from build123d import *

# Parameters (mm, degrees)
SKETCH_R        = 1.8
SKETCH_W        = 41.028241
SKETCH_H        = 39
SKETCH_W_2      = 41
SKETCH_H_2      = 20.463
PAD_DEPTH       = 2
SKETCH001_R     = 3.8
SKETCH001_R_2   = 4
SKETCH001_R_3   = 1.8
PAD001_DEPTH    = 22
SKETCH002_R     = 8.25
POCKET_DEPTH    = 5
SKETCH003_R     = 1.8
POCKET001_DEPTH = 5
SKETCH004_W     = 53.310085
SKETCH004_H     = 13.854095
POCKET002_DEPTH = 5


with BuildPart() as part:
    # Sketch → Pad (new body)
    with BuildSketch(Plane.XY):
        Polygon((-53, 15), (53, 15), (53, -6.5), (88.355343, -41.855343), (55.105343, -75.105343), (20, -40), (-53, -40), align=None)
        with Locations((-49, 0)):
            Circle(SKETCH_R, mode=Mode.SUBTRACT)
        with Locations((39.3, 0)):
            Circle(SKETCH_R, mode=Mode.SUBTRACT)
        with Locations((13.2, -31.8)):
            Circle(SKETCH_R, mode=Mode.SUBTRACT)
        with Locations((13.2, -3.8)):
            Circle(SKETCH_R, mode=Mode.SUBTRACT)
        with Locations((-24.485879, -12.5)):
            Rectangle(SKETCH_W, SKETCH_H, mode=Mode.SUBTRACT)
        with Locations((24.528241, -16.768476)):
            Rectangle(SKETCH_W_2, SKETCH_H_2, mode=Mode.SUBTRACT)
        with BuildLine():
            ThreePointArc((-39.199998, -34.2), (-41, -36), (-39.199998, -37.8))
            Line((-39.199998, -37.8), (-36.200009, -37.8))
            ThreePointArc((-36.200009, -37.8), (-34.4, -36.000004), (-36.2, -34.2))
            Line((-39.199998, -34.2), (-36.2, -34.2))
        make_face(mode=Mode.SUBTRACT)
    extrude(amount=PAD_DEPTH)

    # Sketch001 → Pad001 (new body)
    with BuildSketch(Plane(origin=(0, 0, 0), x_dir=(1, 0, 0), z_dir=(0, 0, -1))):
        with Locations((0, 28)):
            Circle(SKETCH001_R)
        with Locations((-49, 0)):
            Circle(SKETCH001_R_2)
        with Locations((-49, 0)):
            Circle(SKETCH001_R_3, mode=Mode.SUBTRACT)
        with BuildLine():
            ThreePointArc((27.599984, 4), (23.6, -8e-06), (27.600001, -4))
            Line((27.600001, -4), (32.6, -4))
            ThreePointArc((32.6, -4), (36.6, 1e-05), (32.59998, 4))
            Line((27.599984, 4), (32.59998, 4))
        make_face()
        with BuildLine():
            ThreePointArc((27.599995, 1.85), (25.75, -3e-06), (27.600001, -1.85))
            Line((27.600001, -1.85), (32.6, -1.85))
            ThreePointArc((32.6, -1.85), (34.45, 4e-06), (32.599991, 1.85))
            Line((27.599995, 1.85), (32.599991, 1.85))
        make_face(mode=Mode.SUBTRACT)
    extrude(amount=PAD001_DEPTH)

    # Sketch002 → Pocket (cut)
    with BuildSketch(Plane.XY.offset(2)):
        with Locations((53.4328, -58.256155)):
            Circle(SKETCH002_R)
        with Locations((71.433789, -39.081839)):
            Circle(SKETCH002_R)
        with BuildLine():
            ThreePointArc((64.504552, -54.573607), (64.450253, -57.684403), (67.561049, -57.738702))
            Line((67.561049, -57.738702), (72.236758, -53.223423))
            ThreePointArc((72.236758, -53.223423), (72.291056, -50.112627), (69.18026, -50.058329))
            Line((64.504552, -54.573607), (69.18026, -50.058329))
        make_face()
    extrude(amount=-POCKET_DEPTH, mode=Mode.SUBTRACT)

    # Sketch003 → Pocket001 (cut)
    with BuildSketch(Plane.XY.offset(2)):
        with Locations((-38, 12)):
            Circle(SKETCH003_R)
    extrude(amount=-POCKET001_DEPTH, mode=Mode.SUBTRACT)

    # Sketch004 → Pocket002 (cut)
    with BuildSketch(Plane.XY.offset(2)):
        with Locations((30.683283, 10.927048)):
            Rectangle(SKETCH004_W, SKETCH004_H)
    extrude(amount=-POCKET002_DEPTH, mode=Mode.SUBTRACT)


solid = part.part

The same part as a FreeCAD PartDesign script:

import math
import FreeCAD as App
import Part
import Sketcher
Q = App.Units.Quantity

doc = App.newDocument("Part")
body = doc.addObject("PartDesign::Body", "Body")

# Sketch on XY plane
sketch1 = body.newObject("Sketcher::SketchObject", "Sketch")
sketch1.AttachmentSupport = (doc.getObject("XY_Plane"), [""])
sketch1.MapMode = "FlatFace"
sketch1.addGeometry(Part.LineSegment(App.Vector(53, 15, 0), App.Vector(-53, 15, 0)), False)
sketch1.addGeometry(Part.LineSegment(App.Vector(-53, 15, 0), App.Vector(-53, -40, 0)), False)
sketch1.addGeometry(Part.LineSegment(App.Vector(-53, -40, 0), App.Vector(20, -40, 0)), False)
sketch1.addGeometry(Part.LineSegment(App.Vector(20, -40, 0), App.Vector(55.1, -75.1, 0)), False)
sketch1.addGeometry(Part.LineSegment(App.Vector(55.1, -75.1, 0), App.Vector(88.4, -41.9, 0)), False)
sketch1.addGeometry(Part.LineSegment(App.Vector(88.4, -41.9, 0), App.Vector(53, -6.5, 0)), False)
sketch1.addGeometry(Part.LineSegment(App.Vector(53, -6.5, 0), App.Vector(53, 15, 0)), False)
sketch1.addGeometry(Part.Circle(App.Vector(13.2, -31.8, 0), App.Vector(0, 0, 1), 1.8), False)
sketch1.addGeometry(Part.LineSegment(App.Vector(4, -27, 0), App.Vector(4, -6.5, 0)), False)
sketch1.addGeometry(Part.LineSegment(App.Vector(4, -6.5, 0), App.Vector(45, -6.5, 0)), False)
sketch1.addGeometry(Part.LineSegment(App.Vector(45, -6.5, 0), App.Vector(45, -27, 0)), False)
sketch1.addGeometry(Part.LineSegment(App.Vector(45, -27, 0), App.Vector(4, -27, 0)), False)
sketch1.addGeometry(Part.LineSegment(App.Vector(-39.2, -34.2, 0), App.Vector(-36.2, -34.2, 0)), False)
sketch1.addGeometry(Part.ArcOfCircle(Part.Circle(App.Vector(-36.2, -36, 0), App.Vector(0, 0, 1), 1.8), math.radians(-90), math.radians(90)), False)
sketch1.addGeometry(Part.LineSegment(App.Vector(-36.2, -37.8, 0), App.Vector(-39.2, -37.8, 0)), False)
sketch1.addGeometry(Part.ArcOfCircle(Part.Circle(App.Vector(-39.2, -36, 0), App.Vector(0, 0, 1), 1.8), math.radians(90), math.radians(270)), False)
sketch1.addGeometry(Part.Circle(App.Vector(39.3, 0, 0), App.Vector(0, 0, 1), 1.8), False)
sketch1.addGeometry(Part.Circle(App.Vector(13.2, -3.8, 0), App.Vector(0, 0, 1), 1.8), False)
sketch1.addGeometry(Part.LineSegment(App.Vector(-45, -32, 0), App.Vector(-45, 7, 0)), False)
sketch1.addGeometry(Part.LineSegment(App.Vector(-45, 7, 0), App.Vector(-4, 7, 0)), False)
sketch1.addGeometry(Part.LineSegment(App.Vector(-4, 7, 0), App.Vector(-4, -32, 0)), False)
sketch1.addGeometry(Part.LineSegment(App.Vector(-4, -32, 0), App.Vector(-45, -32, 0)), False)
sketch1.addGeometry(Part.Circle(App.Vector(-49, 0, 0), App.Vector(0, 0, 1), 1.8), False)
sketch1.addConstraint(Sketcher.Constraint("Coincident", 0, 2, 1, 1))
sketch1.addConstraint(Sketcher.Constraint("Coincident", 1, 2, 2, 1))
sketch1.addConstraint(Sketcher.Constraint("Coincident", 2, 2, 3, 1))
sketch1.addConstraint(Sketcher.Constraint("Coincident", 3, 2, 4, 1))
sketch1.addConstraint(Sketcher.Constraint("Coincident", 4, 2, 5, 1))
sketch1.addConstraint(Sketcher.Constraint("Coincident", 5, 2, 6, 1))
sketch1.addConstraint(Sketcher.Constraint("Coincident", 6, 2, 0, 1))
sketch1.addConstraint(Sketcher.Constraint("Coincident", 8, 2, 9, 1))
sketch1.addConstraint(Sketcher.Constraint("Coincident", 9, 2, 10, 1))
sketch1.addConstraint(Sketcher.Constraint("Coincident", 10, 2, 11, 1))
sketch1.addConstraint(Sketcher.Constraint("Coincident", 11, 2, 8, 1))
sketch1.addConstraint(Sketcher.Constraint("Tangent", 12, 2, 13, 2))
sketch1.addConstraint(Sketcher.Constraint("Coincident", 13, 1, 14, 1))
sketch1.addConstraint(Sketcher.Constraint("Tangent", 14, 2, 15, 2))
sketch1.addConstraint(Sketcher.Constraint("Tangent", 15, 1, 12, 1))
sketch1.addConstraint(Sketcher.Constraint("Coincident", 18, 2, 19, 1))
sketch1.addConstraint(Sketcher.Constraint("Coincident", 19, 2, 20, 1))
sketch1.addConstraint(Sketcher.Constraint("Coincident", 20, 2, 21, 1))
sketch1.addConstraint(Sketcher.Constraint("Coincident", 21, 2, 18, 1))
sketch1.addConstraint(Sketcher.Constraint("Horizontal", 0))
sketch1.addConstraint(Sketcher.Constraint("Vertical", 1))
sketch1.addConstraint(Sketcher.Constraint("Horizontal", 2))
sketch1.addConstraint(Sketcher.Constraint("Vertical", 6))
sketch1.addConstraint(Sketcher.Constraint("Vertical", 8))
sketch1.addConstraint(Sketcher.Constraint("Horizontal", 9))
sketch1.addConstraint(Sketcher.Constraint("Vertical", 10))
sketch1.addConstraint(Sketcher.Constraint("Horizontal", 11))
sketch1.addConstraint(Sketcher.Constraint("Horizontal", 12))
sketch1.addConstraint(Sketcher.Constraint("Horizontal", 14))
sketch1.addConstraint(Sketcher.Constraint("Vertical", 18))
sketch1.addConstraint(Sketcher.Constraint("Horizontal", 19))
sketch1.addConstraint(Sketcher.Constraint("Vertical", 20))
sketch1.addConstraint(Sketcher.Constraint("Horizontal", 21))
sketch1.addConstraint(Sketcher.Constraint("Equal", 7, 13))
sketch1.addConstraint(Sketcher.Constraint("Equal", 15, 16))
sketch1.addConstraint(Sketcher.Constraint("Equal", 16, 17))
sketch1.addConstraint(Sketcher.Constraint("Equal", 17, 22))
sketch1.addConstraint(Sketcher.Constraint("PointOnObject", 16, 3, -1))
sketch1.addConstraint(Sketcher.Constraint("PointOnObject", 22, 3, -1))
sketch1.addConstraint(Sketcher.Constraint("Perpendicular", 3, 4))
sketch1.addConstraint(Sketcher.Constraint("Perpendicular", 4, 5))
sketch1.addConstraint(Sketcher.Constraint("Vertical", 7, 3, 17, 3))
sketch1.addConstraint(Sketcher.Constraint("Diameter", 7, Q("3.6 mm")))
sketch1.addConstraint(Sketcher.Constraint("DistanceX", 0, 2, 0, 1, Q("106 mm")))
sketch1.addConstraint(Sketcher.Constraint("DistanceX", 2, 1, 2, 2, Q("73 mm")))
sketch1.addConstraint(Sketcher.Constraint("DistanceX", 9, 1, 9, 2, Q("41 mm")))
sketch1.addConstraint(Sketcher.Constraint("DistanceY", 1, 2, 1, 1, Q("55 mm")))
sketch1.addConstraint(Sketcher.Constraint("DistanceY", 18, 1, 18, 2, Q("39 mm")))
sketch1.addConstraint(Sketcher.Constraint("Angle", 3, Q("-45 deg")))
sketch1.addConstraint(Sketcher.Constraint("DistanceY", 6, 1, 6, 2, Q("21.5 mm")))
sketch1.addConstraint(Sketcher.Constraint("DistanceY", 13, 3, -1, 1, Q("36 mm")))
sketch1.addConstraint(Sketcher.Constraint("DistanceX", 22, 3, -1, 1, Q("49 mm")))
sketch1.addConstraint(Sketcher.Constraint("DistanceX", 0, 2, -1, 1, Q("53 mm")))
sketch1.addConstraint(Sketcher.Constraint("DistanceY", -1, 1, 0, 2, Q("15 mm")))
sketch1.addConstraint(Sketcher.Constraint("DistanceX", 18, 2, -1, 1, Q("45 mm")))
sketch1.addConstraint(Sketcher.Constraint("DistanceY", -1, 1, 18, 2, Q("7 mm")))
sketch1.addConstraint(Sketcher.Constraint("DistanceX", 15, 3, 13, 3, Q("3 mm")))
sketch1.addConstraint(Sketcher.Constraint("DistanceY", 7, 3, 17, 3, Q("28 mm")))
sketch1.addConstraint(Sketcher.Constraint("DistanceX", 19, 2, 8, 2, Q("8 mm")))
sketch1.addConstraint(Sketcher.Constraint("DistanceX", -1, 1, 7, 3, Q("13.2 mm")))
sketch1.addConstraint(Sketcher.Constraint("DistanceY", 7, 3, -1, 1, Q("31.8 mm")))
sketch1.addConstraint(Sketcher.Constraint("DistanceX", 13, 3, -1, 1, Q("36.2 mm")))
sketch1.addConstraint(Sketcher.Constraint("DistanceX", -1, 1, 16, 3, Q("39.3 mm")))
sketch1.addConstraint(Sketcher.Constraint("DistanceY", 8, 1, 8, 2, Q("20.463 mm")))
sketch1.addConstraint(Sketcher.Constraint("DistanceX", 14, 2, 14, 1, Q("2.999989 mm")))
sketch1.addConstraint(Sketcher.Constraint("DistanceX", 19, 1, 19, 2, Q("41.028241 mm")))
sketch1.addConstraint(Sketcher.Constraint("Distance", 3, Q("49.646452 mm")))
sketch1.addConstraint(Sketcher.Constraint("DistanceY", 8, 2, -1, 1, Q("6.536976 mm")))
pad1 = body.newObject("PartDesign::Pad", "Pad")
pad1.Profile = sketch1
pad1.Length = 2

# Sketch on XY plane
sketch2 = body.newObject("Sketcher::SketchObject", "Sketch001")
sketch2.AttachmentSupport = (doc.getObject("XY_Plane"), [""])
sketch2.MapMode = "FlatFace"
sketch2.addGeometry(Part.Circle(App.Vector(0, -28, 0), App.Vector(0, 0, 1), 3.8), False)
sketch2.addGeometry(Part.Circle(App.Vector(-49, 0, 0), App.Vector(0, 0, 1), 4), False)
sketch2.addGeometry(Part.Circle(App.Vector(-49, 0, 0), App.Vector(0, 0, 1), 1.8), False)
sketch2.addGeometry(Part.ArcOfCircle(Part.Circle(App.Vector(27.6, 0, 0), App.Vector(0, 0, 1), 4), math.radians(90), math.radians(270)), False)
sketch2.addGeometry(Part.LineSegment(App.Vector(27.6, 4, 0), App.Vector(32.6, 4, 0)), False)
sketch2.addGeometry(Part.ArcOfCircle(Part.Circle(App.Vector(32.6, 0, 0), App.Vector(0, 0, 1), 4), math.radians(-90), math.radians(90)), False)
sketch2.addGeometry(Part.LineSegment(App.Vector(32.6, -4, 0), App.Vector(27.6, -4, 0)), False)
sketch2.addGeometry(Part.ArcOfCircle(Part.Circle(App.Vector(27.6, 0, 0), App.Vector(0, 0, 1), 1.9), math.radians(90), math.radians(270)), False)
sketch2.addGeometry(Part.LineSegment(App.Vector(27.6, -1.9, 0), App.Vector(32.6, -1.9, 0)), False)
sketch2.addGeometry(Part.ArcOfCircle(Part.Circle(App.Vector(32.6, 0, 0), App.Vector(0, 0, 1), 1.9), math.radians(-90), math.radians(90)), False)
sketch2.addGeometry(Part.LineSegment(App.Vector(32.6, 1.9, 0), App.Vector(27.6, 1.9, 0)), False)
sketch2.addConstraint(Sketcher.Constraint("Tangent", 3, 1, 4, 1))
sketch2.addConstraint(Sketcher.Constraint("Tangent", 4, 2, 5, 2))
sketch2.addConstraint(Sketcher.Constraint("Coincident", 5, 1, 6, 1))
sketch2.addConstraint(Sketcher.Constraint("Coincident", 6, 2, 3, 2))
sketch2.addConstraint(Sketcher.Constraint("Coincident", 7, 2, 8, 1))
sketch2.addConstraint(Sketcher.Constraint("Coincident", 8, 2, 9, 1))
sketch2.addConstraint(Sketcher.Constraint("Tangent", 9, 2, 10, 1))
sketch2.addConstraint(Sketcher.Constraint("Tangent", 10, 2, 7, 1))
sketch2.addConstraint(Sketcher.Constraint("Horizontal", 4))
sketch2.addConstraint(Sketcher.Constraint("Horizontal", 6))
sketch2.addConstraint(Sketcher.Constraint("Horizontal", 8))
sketch2.addConstraint(Sketcher.Constraint("Horizontal", 10))
sketch2.addConstraint(Sketcher.Constraint("Coincident", 2, 3, 1, 3))
sketch2.addConstraint(Sketcher.Constraint("Coincident", 7, 3, 3, 3))
sketch2.addConstraint(Sketcher.Constraint("Equal", 1, 3))
sketch2.addConstraint(Sketcher.Constraint("Symmetric", 8, 2, 9, 2, -1))
sketch2.addConstraint(Sketcher.Constraint("PointOnObject", 0, 3, -2))
sketch2.addConstraint(Sketcher.Constraint("PointOnObject", 1, 3, -1))
sketch2.addConstraint(Sketcher.Constraint("Vertical", 9, 3, 4, 2))
sketch2.addConstraint(Sketcher.Constraint("Equal", 6, 8))
sketch2.addConstraint(Sketcher.Constraint("Diameter", 1, Q("8 mm")))
sketch2.addConstraint(Sketcher.Constraint("Diameter", 0, Q("7.6 mm")))
sketch2.addConstraint(Sketcher.Constraint("Diameter", 2, Q("3.6 mm")))
sketch2.addConstraint(Sketcher.Constraint("DistanceX", 4, 1, 4, 2, Q("4.999999 mm")))
sketch2.addConstraint(Sketcher.Constraint("Radius", 7, Q("1.85 mm")))
sketch2.addConstraint(Sketcher.Constraint("DistanceY", 0, 3, -1, 1, Q("28 mm")))
sketch2.addConstraint(Sketcher.Constraint("DistanceX", 1, 3, -1, 1, Q("49 mm")))
sketch2.addConstraint(Sketcher.Constraint("DistanceX", -1, 1, 3, 3, Q("27.6 mm")))
sketch2.addConstraint(Sketcher.Constraint("DistanceX", 6, 2, 6, 1, Q("4.999996 mm")))
sketch2.addConstraint(Sketcher.Constraint("DistanceX", -1, 1, 5, 1, Q("32.59998 mm")))
pad2 = body.newObject("PartDesign::Pad", "Pad001")
pad2.Profile = sketch2
pad2.Length = 22
pad2.Reversed = True

# Sketch on XY plane
sketch3 = body.newObject("Sketcher::SketchObject", "Sketch002")
sketch3.AttachmentSupport = (doc.getObject("XY_Plane"), [""])
sketch3.MapMode = "FlatFace"
sketch3.AttachmentOffset = App.Placement(App.Vector(0, 0, 2), App.Rotation())
sketch3.addGeometry(Part.Circle(App.Vector(53.4, -58.3, 0), App.Vector(0, 0, 1), 8.2), False)
sketch3.addGeometry(Part.Circle(App.Vector(71.4, -39.1, 0), App.Vector(0, 0, 1), 8.2), False)
sketch3.addGeometry(Part.ArcOfCircle(Part.Circle(App.Vector(66, -56.2, 0), App.Vector(0, 0, 1), 2.2), math.radians(134), math.radians(314)), False)
sketch3.addGeometry(Part.LineSegment(App.Vector(67.6, -57.7, 0), App.Vector(72.2, -53.2, 0)), False)
sketch3.addGeometry(Part.ArcOfCircle(Part.Circle(App.Vector(70.7, -51.6, 0), App.Vector(0, 0, 1), 2.2), math.radians(-46), math.radians(134)), False)
sketch3.addGeometry(Part.LineSegment(App.Vector(69.2, -50.1, 0), App.Vector(64.5, -54.6, 0)), False)
sketch3.addConstraint(Sketcher.Constraint("Tangent", 2, 2, 3, 1))
sketch3.addConstraint(Sketcher.Constraint("Tangent", 3, 2, 4, 1))
sketch3.addConstraint(Sketcher.Constraint("Tangent", 4, 2, 5, 1))
sketch3.addConstraint(Sketcher.Constraint("Tangent", 5, 2, 2, 1))
sketch3.addConstraint(Sketcher.Constraint("Equal", 0, 1))
sketch3.addConstraint(Sketcher.Constraint("Equal", 2, 4))
sketch3.addConstraint(Sketcher.Constraint("Diameter", 0, Q("16.5 mm")))
sketch3.addConstraint(Sketcher.Constraint("Radius", 2, Q("2.2 mm")))
sketch3.addConstraint(Sketcher.Constraint("Angle", 3, Q("43.999996 deg")))
sketch3.addConstraint(Sketcher.Constraint("Distance", 3, Q("6.5 mm")))
sketch3.addConstraint(Sketcher.Constraint("DistanceX", 0, 3, 2, 3, Q("12.6 mm")))
sketch3.addConstraint(Sketcher.Constraint("DistanceY", 0, 3, 2, 3, Q("2.100001 mm")))
sketch3.addConstraint(Sketcher.Constraint("DistanceX", -1, 1, 0, 3, Q("53.4328 mm")))
sketch3.addConstraint(Sketcher.Constraint("DistanceY", 2, 2, -1, 1, Q("57.738702 mm")))
sketch3.addConstraint(Sketcher.Constraint("DistanceX", -1, 1, 1, 3, Q("71.433789 mm")))
sketch3.addConstraint(Sketcher.Constraint("DistanceY", 1, 3, -1, 1, Q("39.081839 mm")))
pocket1 = body.newObject("PartDesign::Pocket", "Pocket")
pocket1.Profile = sketch3
pocket1.Length = 5

# Sketch on XY plane
sketch4 = body.newObject("Sketcher::SketchObject", "Sketch003")
sketch4.AttachmentSupport = (doc.getObject("XY_Plane"), [""])
sketch4.MapMode = "FlatFace"
sketch4.AttachmentOffset = App.Placement(App.Vector(0, 0, 2), App.Rotation())
sketch4.addGeometry(Part.Circle(App.Vector(-38, 12, 0), App.Vector(0, 0, 1), 1.8), False)
sketch4.addConstraint(Sketcher.Constraint("Diameter", 0, Q("3.6 mm")))
sketch4.addConstraint(Sketcher.Constraint("DistanceX", 0, 3, -1, 1, Q("38 mm")))
sketch4.addConstraint(Sketcher.Constraint("DistanceY", -1, 1, 0, 3, Q("12 mm")))
pocket2 = body.newObject("PartDesign::Pocket", "Pocket001")
pocket2.Profile = sketch4
pocket2.Length = 5

# Sketch on XY plane
sketch5 = body.newObject("Sketcher::SketchObject", "Sketch004")
sketch5.AttachmentSupport = (doc.getObject("XY_Plane"), [""])
sketch5.MapMode = "FlatFace"
sketch5.AttachmentOffset = App.Placement(App.Vector(0, 0, 2), App.Rotation())
sketch5.addGeometry(Part.LineSegment(App.Vector(4, 18, 0), App.Vector(4, 4, 0)), False)
sketch5.addGeometry(Part.LineSegment(App.Vector(4, 4, 0), App.Vector(57, 4, 0)), False)
sketch5.addGeometry(Part.LineSegment(App.Vector(57, 4, 0), App.Vector(57, 18, 0)), False)
sketch5.addGeometry(Part.LineSegment(App.Vector(57, 18, 0), App.Vector(4, 18, 0)), False)
sketch5.addConstraint(Sketcher.Constraint("Coincident", 0, 2, 1, 1))
sketch5.addConstraint(Sketcher.Constraint("Coincident", 1, 2, 2, 1))
sketch5.addConstraint(Sketcher.Constraint("Coincident", 2, 2, 3, 1))
sketch5.addConstraint(Sketcher.Constraint("Coincident", 3, 2, 0, 1))
sketch5.addConstraint(Sketcher.Constraint("Vertical", 0))
sketch5.addConstraint(Sketcher.Constraint("Horizontal", 1))
sketch5.addConstraint(Sketcher.Constraint("Vertical", 2))
sketch5.addConstraint(Sketcher.Constraint("Horizontal", 3))
sketch5.addConstraint(Sketcher.Constraint("DistanceY", -1, 1, 0, 2, Q("4 mm")))
sketch5.addConstraint(Sketcher.Constraint("DistanceX", 1, 1, 1, 2, Q("53.310085 mm")))
sketch5.addConstraint(Sketcher.Constraint("DistanceY", 0, 2, 0, 1, Q("13.854095 mm")))
sketch5.addConstraint(Sketcher.Constraint("DistanceX", -1, 1, 0, 2, Q("4.02824 mm")))
pocket3 = body.newObject("PartDesign::Pocket", "Pocket002")
pocket3.Profile = sketch5
pocket3.Length = 5

doc.recompute()
